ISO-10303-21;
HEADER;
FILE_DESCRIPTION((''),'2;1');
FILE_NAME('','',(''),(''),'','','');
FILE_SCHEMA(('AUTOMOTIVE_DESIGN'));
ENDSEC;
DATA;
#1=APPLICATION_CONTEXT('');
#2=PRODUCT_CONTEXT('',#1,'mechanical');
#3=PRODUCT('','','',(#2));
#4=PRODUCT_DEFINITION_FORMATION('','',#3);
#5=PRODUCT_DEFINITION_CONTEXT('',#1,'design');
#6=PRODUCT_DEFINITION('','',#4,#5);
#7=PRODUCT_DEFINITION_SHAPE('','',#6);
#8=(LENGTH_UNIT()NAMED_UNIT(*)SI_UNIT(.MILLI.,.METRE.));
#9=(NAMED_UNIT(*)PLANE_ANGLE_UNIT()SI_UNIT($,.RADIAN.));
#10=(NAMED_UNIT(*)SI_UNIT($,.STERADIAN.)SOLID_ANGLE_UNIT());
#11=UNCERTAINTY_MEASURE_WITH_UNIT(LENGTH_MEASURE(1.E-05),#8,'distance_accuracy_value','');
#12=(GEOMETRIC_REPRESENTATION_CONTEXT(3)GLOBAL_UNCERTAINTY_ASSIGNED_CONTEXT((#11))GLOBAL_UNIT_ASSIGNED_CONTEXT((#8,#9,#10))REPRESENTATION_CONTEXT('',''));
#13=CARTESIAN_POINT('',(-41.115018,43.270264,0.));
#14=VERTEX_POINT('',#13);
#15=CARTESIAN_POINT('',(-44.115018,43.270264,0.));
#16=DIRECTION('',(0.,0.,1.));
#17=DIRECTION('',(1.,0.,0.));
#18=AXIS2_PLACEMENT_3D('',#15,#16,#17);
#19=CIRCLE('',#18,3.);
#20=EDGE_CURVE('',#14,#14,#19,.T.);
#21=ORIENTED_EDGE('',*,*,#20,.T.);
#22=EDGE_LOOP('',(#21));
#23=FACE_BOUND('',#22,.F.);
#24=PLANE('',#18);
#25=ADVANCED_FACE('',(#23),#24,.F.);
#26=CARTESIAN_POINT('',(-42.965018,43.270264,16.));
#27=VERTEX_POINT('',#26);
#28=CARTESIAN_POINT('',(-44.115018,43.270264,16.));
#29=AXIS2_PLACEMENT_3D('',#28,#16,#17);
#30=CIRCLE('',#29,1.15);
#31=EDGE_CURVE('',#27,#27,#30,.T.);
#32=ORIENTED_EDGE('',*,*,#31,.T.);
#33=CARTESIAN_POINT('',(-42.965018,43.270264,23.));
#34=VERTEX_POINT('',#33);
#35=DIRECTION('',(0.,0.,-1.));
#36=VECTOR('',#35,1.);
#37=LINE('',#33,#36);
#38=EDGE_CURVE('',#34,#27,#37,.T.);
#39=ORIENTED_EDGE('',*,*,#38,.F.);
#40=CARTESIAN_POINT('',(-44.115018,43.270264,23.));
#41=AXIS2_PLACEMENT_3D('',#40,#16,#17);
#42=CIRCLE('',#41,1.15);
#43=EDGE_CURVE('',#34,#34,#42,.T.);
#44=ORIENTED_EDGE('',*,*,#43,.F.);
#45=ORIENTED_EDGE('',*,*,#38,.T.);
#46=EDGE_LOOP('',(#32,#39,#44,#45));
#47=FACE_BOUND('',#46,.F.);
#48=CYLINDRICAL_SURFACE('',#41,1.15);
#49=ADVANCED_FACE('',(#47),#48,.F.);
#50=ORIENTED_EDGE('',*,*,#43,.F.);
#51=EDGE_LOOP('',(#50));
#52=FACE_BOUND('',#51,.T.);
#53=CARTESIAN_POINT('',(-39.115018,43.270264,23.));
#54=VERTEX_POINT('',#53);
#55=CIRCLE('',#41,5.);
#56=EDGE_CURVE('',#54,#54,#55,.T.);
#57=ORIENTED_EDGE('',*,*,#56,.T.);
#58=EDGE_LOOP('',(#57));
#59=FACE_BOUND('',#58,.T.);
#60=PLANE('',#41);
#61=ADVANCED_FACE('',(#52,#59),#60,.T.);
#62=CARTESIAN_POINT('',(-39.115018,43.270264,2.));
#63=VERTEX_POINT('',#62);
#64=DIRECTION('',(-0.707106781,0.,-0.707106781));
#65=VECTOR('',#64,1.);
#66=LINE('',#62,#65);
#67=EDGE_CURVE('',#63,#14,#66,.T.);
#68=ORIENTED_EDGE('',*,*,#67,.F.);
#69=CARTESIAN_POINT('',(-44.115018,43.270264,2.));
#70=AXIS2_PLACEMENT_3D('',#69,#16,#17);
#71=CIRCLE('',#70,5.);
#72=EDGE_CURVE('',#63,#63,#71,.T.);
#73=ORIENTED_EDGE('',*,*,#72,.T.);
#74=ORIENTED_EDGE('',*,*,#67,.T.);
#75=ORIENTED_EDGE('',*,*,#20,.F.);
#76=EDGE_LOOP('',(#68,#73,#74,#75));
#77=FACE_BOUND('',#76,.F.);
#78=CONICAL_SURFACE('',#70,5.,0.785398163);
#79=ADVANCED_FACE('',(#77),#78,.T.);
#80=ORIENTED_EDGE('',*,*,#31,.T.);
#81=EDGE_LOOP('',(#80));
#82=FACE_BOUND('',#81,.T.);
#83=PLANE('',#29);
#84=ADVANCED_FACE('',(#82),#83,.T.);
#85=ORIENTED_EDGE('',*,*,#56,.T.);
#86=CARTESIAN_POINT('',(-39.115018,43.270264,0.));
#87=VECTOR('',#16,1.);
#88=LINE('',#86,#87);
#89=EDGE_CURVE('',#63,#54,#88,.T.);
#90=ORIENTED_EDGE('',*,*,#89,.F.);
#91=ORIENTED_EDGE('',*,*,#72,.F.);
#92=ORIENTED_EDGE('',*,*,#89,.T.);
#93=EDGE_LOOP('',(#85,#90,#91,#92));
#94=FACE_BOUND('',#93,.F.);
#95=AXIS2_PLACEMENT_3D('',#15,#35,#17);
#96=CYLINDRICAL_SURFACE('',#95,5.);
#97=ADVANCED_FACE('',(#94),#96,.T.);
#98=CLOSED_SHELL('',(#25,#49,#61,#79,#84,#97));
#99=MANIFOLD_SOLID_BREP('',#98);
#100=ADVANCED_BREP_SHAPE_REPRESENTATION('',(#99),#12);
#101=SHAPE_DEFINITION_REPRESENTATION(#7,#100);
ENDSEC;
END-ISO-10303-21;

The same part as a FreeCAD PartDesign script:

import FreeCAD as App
import Part
import Sketcher


def edges_at(feature, points):
    """Names of the edges that pass closest to the given points."""
    edges = feature.Shape.Edges
    near = lambda p: min(range(len(edges)), key=lambda i: edges[i].distToShape(Part.Vertex(*p))[0])
    return sorted({f"Edge{near(p) + 1}" for p in points})

doc = App.newDocument("Part")
params = doc.addObject("Spreadsheet::Sheet", "Params")
for row, (alias, value) in enumerate([
    ("sketch1_diameter", "10 mm"),
    ("pad1_length", "23 mm"),
    ("sketch2_diameter", "2.3 mm"),
    ("pocket1_length", "7 mm"),
    ("chamfer_size", "2 mm"),
], start=1):
    params.set(f"A{row}", alias)
    params.set(f"B{row}", "=" + value)
    params.setAlias(f"B{row}", alias)

body = doc.addObject("PartDesign::Body", "Body")

sketch1 = body.newObject("Sketcher::SketchObject", "Sketch")
sketch1.AttachmentSupport = (doc.getObject("XY_Plane"), [""])
sketch1.MapMode = "FlatFace"
sketch1.addGeometry(Part.Circle(App.Vector(-44.115018, 43.270264, 0), App.Vector(0, 0, 1), 5), False)
sketch1.addConstraint([
    Sketcher.Constraint("Diameter", 0, 10.0),
    Sketcher.Constraint("DistanceX", 0, 3, -1, 1, 44.115018),
    Sketcher.Constraint("DistanceY", -1, 1, 0, 3, 43.270264),
])
sketch1.setExpression("Constraints[0]", "Params.sketch1_diameter")
pad1 = body.newObject("PartDesign::Pad", "Pad")
pad1.Profile = sketch1
pad1.setExpression("Length", "Params.pad1_length")

sketch2 = body.newObject("Sketcher::SketchObject", "Sketch001")
sketch2.AttachmentSupport = (doc.getObject("XY_Plane"), [""])
sketch2.MapMode = "FlatFace"
sketch2.AttachmentOffset = App.Placement(App.Vector(0, 0, 23), App.Rotation())
sketch2.addGeometry(Part.Circle(App.Vector(-44.115018, 43.270264, 0), App.Vector(0, 0, 1), 1.15), False)
sketch2.addConstraint([
    Sketcher.Constraint("Diameter", 0, 2.3),
    Sketcher.Constraint("DistanceX", 0, 3, -1, 1, 44.115018),
    Sketcher.Constraint("DistanceY", -1, 1, 0, 3, 43.270264),
])
sketch2.setExpression("Constraints[0]", "Params.sketch2_diameter")
pocket1 = body.newObject("PartDesign::Pocket", "Pocket")
pocket1.Profile = sketch2
pocket1.setExpression("Length", "Params.pocket1_length")
doc.recompute()

chamfer = body.newObject("PartDesign::Chamfer", "Chamfer")
chamfer.Base = (pocket1, edges_at(pocket1, [(-49.115, 43.27, 0)]))
chamfer.setExpression("Size", "Params.chamfer_size")

doc.recompute()
